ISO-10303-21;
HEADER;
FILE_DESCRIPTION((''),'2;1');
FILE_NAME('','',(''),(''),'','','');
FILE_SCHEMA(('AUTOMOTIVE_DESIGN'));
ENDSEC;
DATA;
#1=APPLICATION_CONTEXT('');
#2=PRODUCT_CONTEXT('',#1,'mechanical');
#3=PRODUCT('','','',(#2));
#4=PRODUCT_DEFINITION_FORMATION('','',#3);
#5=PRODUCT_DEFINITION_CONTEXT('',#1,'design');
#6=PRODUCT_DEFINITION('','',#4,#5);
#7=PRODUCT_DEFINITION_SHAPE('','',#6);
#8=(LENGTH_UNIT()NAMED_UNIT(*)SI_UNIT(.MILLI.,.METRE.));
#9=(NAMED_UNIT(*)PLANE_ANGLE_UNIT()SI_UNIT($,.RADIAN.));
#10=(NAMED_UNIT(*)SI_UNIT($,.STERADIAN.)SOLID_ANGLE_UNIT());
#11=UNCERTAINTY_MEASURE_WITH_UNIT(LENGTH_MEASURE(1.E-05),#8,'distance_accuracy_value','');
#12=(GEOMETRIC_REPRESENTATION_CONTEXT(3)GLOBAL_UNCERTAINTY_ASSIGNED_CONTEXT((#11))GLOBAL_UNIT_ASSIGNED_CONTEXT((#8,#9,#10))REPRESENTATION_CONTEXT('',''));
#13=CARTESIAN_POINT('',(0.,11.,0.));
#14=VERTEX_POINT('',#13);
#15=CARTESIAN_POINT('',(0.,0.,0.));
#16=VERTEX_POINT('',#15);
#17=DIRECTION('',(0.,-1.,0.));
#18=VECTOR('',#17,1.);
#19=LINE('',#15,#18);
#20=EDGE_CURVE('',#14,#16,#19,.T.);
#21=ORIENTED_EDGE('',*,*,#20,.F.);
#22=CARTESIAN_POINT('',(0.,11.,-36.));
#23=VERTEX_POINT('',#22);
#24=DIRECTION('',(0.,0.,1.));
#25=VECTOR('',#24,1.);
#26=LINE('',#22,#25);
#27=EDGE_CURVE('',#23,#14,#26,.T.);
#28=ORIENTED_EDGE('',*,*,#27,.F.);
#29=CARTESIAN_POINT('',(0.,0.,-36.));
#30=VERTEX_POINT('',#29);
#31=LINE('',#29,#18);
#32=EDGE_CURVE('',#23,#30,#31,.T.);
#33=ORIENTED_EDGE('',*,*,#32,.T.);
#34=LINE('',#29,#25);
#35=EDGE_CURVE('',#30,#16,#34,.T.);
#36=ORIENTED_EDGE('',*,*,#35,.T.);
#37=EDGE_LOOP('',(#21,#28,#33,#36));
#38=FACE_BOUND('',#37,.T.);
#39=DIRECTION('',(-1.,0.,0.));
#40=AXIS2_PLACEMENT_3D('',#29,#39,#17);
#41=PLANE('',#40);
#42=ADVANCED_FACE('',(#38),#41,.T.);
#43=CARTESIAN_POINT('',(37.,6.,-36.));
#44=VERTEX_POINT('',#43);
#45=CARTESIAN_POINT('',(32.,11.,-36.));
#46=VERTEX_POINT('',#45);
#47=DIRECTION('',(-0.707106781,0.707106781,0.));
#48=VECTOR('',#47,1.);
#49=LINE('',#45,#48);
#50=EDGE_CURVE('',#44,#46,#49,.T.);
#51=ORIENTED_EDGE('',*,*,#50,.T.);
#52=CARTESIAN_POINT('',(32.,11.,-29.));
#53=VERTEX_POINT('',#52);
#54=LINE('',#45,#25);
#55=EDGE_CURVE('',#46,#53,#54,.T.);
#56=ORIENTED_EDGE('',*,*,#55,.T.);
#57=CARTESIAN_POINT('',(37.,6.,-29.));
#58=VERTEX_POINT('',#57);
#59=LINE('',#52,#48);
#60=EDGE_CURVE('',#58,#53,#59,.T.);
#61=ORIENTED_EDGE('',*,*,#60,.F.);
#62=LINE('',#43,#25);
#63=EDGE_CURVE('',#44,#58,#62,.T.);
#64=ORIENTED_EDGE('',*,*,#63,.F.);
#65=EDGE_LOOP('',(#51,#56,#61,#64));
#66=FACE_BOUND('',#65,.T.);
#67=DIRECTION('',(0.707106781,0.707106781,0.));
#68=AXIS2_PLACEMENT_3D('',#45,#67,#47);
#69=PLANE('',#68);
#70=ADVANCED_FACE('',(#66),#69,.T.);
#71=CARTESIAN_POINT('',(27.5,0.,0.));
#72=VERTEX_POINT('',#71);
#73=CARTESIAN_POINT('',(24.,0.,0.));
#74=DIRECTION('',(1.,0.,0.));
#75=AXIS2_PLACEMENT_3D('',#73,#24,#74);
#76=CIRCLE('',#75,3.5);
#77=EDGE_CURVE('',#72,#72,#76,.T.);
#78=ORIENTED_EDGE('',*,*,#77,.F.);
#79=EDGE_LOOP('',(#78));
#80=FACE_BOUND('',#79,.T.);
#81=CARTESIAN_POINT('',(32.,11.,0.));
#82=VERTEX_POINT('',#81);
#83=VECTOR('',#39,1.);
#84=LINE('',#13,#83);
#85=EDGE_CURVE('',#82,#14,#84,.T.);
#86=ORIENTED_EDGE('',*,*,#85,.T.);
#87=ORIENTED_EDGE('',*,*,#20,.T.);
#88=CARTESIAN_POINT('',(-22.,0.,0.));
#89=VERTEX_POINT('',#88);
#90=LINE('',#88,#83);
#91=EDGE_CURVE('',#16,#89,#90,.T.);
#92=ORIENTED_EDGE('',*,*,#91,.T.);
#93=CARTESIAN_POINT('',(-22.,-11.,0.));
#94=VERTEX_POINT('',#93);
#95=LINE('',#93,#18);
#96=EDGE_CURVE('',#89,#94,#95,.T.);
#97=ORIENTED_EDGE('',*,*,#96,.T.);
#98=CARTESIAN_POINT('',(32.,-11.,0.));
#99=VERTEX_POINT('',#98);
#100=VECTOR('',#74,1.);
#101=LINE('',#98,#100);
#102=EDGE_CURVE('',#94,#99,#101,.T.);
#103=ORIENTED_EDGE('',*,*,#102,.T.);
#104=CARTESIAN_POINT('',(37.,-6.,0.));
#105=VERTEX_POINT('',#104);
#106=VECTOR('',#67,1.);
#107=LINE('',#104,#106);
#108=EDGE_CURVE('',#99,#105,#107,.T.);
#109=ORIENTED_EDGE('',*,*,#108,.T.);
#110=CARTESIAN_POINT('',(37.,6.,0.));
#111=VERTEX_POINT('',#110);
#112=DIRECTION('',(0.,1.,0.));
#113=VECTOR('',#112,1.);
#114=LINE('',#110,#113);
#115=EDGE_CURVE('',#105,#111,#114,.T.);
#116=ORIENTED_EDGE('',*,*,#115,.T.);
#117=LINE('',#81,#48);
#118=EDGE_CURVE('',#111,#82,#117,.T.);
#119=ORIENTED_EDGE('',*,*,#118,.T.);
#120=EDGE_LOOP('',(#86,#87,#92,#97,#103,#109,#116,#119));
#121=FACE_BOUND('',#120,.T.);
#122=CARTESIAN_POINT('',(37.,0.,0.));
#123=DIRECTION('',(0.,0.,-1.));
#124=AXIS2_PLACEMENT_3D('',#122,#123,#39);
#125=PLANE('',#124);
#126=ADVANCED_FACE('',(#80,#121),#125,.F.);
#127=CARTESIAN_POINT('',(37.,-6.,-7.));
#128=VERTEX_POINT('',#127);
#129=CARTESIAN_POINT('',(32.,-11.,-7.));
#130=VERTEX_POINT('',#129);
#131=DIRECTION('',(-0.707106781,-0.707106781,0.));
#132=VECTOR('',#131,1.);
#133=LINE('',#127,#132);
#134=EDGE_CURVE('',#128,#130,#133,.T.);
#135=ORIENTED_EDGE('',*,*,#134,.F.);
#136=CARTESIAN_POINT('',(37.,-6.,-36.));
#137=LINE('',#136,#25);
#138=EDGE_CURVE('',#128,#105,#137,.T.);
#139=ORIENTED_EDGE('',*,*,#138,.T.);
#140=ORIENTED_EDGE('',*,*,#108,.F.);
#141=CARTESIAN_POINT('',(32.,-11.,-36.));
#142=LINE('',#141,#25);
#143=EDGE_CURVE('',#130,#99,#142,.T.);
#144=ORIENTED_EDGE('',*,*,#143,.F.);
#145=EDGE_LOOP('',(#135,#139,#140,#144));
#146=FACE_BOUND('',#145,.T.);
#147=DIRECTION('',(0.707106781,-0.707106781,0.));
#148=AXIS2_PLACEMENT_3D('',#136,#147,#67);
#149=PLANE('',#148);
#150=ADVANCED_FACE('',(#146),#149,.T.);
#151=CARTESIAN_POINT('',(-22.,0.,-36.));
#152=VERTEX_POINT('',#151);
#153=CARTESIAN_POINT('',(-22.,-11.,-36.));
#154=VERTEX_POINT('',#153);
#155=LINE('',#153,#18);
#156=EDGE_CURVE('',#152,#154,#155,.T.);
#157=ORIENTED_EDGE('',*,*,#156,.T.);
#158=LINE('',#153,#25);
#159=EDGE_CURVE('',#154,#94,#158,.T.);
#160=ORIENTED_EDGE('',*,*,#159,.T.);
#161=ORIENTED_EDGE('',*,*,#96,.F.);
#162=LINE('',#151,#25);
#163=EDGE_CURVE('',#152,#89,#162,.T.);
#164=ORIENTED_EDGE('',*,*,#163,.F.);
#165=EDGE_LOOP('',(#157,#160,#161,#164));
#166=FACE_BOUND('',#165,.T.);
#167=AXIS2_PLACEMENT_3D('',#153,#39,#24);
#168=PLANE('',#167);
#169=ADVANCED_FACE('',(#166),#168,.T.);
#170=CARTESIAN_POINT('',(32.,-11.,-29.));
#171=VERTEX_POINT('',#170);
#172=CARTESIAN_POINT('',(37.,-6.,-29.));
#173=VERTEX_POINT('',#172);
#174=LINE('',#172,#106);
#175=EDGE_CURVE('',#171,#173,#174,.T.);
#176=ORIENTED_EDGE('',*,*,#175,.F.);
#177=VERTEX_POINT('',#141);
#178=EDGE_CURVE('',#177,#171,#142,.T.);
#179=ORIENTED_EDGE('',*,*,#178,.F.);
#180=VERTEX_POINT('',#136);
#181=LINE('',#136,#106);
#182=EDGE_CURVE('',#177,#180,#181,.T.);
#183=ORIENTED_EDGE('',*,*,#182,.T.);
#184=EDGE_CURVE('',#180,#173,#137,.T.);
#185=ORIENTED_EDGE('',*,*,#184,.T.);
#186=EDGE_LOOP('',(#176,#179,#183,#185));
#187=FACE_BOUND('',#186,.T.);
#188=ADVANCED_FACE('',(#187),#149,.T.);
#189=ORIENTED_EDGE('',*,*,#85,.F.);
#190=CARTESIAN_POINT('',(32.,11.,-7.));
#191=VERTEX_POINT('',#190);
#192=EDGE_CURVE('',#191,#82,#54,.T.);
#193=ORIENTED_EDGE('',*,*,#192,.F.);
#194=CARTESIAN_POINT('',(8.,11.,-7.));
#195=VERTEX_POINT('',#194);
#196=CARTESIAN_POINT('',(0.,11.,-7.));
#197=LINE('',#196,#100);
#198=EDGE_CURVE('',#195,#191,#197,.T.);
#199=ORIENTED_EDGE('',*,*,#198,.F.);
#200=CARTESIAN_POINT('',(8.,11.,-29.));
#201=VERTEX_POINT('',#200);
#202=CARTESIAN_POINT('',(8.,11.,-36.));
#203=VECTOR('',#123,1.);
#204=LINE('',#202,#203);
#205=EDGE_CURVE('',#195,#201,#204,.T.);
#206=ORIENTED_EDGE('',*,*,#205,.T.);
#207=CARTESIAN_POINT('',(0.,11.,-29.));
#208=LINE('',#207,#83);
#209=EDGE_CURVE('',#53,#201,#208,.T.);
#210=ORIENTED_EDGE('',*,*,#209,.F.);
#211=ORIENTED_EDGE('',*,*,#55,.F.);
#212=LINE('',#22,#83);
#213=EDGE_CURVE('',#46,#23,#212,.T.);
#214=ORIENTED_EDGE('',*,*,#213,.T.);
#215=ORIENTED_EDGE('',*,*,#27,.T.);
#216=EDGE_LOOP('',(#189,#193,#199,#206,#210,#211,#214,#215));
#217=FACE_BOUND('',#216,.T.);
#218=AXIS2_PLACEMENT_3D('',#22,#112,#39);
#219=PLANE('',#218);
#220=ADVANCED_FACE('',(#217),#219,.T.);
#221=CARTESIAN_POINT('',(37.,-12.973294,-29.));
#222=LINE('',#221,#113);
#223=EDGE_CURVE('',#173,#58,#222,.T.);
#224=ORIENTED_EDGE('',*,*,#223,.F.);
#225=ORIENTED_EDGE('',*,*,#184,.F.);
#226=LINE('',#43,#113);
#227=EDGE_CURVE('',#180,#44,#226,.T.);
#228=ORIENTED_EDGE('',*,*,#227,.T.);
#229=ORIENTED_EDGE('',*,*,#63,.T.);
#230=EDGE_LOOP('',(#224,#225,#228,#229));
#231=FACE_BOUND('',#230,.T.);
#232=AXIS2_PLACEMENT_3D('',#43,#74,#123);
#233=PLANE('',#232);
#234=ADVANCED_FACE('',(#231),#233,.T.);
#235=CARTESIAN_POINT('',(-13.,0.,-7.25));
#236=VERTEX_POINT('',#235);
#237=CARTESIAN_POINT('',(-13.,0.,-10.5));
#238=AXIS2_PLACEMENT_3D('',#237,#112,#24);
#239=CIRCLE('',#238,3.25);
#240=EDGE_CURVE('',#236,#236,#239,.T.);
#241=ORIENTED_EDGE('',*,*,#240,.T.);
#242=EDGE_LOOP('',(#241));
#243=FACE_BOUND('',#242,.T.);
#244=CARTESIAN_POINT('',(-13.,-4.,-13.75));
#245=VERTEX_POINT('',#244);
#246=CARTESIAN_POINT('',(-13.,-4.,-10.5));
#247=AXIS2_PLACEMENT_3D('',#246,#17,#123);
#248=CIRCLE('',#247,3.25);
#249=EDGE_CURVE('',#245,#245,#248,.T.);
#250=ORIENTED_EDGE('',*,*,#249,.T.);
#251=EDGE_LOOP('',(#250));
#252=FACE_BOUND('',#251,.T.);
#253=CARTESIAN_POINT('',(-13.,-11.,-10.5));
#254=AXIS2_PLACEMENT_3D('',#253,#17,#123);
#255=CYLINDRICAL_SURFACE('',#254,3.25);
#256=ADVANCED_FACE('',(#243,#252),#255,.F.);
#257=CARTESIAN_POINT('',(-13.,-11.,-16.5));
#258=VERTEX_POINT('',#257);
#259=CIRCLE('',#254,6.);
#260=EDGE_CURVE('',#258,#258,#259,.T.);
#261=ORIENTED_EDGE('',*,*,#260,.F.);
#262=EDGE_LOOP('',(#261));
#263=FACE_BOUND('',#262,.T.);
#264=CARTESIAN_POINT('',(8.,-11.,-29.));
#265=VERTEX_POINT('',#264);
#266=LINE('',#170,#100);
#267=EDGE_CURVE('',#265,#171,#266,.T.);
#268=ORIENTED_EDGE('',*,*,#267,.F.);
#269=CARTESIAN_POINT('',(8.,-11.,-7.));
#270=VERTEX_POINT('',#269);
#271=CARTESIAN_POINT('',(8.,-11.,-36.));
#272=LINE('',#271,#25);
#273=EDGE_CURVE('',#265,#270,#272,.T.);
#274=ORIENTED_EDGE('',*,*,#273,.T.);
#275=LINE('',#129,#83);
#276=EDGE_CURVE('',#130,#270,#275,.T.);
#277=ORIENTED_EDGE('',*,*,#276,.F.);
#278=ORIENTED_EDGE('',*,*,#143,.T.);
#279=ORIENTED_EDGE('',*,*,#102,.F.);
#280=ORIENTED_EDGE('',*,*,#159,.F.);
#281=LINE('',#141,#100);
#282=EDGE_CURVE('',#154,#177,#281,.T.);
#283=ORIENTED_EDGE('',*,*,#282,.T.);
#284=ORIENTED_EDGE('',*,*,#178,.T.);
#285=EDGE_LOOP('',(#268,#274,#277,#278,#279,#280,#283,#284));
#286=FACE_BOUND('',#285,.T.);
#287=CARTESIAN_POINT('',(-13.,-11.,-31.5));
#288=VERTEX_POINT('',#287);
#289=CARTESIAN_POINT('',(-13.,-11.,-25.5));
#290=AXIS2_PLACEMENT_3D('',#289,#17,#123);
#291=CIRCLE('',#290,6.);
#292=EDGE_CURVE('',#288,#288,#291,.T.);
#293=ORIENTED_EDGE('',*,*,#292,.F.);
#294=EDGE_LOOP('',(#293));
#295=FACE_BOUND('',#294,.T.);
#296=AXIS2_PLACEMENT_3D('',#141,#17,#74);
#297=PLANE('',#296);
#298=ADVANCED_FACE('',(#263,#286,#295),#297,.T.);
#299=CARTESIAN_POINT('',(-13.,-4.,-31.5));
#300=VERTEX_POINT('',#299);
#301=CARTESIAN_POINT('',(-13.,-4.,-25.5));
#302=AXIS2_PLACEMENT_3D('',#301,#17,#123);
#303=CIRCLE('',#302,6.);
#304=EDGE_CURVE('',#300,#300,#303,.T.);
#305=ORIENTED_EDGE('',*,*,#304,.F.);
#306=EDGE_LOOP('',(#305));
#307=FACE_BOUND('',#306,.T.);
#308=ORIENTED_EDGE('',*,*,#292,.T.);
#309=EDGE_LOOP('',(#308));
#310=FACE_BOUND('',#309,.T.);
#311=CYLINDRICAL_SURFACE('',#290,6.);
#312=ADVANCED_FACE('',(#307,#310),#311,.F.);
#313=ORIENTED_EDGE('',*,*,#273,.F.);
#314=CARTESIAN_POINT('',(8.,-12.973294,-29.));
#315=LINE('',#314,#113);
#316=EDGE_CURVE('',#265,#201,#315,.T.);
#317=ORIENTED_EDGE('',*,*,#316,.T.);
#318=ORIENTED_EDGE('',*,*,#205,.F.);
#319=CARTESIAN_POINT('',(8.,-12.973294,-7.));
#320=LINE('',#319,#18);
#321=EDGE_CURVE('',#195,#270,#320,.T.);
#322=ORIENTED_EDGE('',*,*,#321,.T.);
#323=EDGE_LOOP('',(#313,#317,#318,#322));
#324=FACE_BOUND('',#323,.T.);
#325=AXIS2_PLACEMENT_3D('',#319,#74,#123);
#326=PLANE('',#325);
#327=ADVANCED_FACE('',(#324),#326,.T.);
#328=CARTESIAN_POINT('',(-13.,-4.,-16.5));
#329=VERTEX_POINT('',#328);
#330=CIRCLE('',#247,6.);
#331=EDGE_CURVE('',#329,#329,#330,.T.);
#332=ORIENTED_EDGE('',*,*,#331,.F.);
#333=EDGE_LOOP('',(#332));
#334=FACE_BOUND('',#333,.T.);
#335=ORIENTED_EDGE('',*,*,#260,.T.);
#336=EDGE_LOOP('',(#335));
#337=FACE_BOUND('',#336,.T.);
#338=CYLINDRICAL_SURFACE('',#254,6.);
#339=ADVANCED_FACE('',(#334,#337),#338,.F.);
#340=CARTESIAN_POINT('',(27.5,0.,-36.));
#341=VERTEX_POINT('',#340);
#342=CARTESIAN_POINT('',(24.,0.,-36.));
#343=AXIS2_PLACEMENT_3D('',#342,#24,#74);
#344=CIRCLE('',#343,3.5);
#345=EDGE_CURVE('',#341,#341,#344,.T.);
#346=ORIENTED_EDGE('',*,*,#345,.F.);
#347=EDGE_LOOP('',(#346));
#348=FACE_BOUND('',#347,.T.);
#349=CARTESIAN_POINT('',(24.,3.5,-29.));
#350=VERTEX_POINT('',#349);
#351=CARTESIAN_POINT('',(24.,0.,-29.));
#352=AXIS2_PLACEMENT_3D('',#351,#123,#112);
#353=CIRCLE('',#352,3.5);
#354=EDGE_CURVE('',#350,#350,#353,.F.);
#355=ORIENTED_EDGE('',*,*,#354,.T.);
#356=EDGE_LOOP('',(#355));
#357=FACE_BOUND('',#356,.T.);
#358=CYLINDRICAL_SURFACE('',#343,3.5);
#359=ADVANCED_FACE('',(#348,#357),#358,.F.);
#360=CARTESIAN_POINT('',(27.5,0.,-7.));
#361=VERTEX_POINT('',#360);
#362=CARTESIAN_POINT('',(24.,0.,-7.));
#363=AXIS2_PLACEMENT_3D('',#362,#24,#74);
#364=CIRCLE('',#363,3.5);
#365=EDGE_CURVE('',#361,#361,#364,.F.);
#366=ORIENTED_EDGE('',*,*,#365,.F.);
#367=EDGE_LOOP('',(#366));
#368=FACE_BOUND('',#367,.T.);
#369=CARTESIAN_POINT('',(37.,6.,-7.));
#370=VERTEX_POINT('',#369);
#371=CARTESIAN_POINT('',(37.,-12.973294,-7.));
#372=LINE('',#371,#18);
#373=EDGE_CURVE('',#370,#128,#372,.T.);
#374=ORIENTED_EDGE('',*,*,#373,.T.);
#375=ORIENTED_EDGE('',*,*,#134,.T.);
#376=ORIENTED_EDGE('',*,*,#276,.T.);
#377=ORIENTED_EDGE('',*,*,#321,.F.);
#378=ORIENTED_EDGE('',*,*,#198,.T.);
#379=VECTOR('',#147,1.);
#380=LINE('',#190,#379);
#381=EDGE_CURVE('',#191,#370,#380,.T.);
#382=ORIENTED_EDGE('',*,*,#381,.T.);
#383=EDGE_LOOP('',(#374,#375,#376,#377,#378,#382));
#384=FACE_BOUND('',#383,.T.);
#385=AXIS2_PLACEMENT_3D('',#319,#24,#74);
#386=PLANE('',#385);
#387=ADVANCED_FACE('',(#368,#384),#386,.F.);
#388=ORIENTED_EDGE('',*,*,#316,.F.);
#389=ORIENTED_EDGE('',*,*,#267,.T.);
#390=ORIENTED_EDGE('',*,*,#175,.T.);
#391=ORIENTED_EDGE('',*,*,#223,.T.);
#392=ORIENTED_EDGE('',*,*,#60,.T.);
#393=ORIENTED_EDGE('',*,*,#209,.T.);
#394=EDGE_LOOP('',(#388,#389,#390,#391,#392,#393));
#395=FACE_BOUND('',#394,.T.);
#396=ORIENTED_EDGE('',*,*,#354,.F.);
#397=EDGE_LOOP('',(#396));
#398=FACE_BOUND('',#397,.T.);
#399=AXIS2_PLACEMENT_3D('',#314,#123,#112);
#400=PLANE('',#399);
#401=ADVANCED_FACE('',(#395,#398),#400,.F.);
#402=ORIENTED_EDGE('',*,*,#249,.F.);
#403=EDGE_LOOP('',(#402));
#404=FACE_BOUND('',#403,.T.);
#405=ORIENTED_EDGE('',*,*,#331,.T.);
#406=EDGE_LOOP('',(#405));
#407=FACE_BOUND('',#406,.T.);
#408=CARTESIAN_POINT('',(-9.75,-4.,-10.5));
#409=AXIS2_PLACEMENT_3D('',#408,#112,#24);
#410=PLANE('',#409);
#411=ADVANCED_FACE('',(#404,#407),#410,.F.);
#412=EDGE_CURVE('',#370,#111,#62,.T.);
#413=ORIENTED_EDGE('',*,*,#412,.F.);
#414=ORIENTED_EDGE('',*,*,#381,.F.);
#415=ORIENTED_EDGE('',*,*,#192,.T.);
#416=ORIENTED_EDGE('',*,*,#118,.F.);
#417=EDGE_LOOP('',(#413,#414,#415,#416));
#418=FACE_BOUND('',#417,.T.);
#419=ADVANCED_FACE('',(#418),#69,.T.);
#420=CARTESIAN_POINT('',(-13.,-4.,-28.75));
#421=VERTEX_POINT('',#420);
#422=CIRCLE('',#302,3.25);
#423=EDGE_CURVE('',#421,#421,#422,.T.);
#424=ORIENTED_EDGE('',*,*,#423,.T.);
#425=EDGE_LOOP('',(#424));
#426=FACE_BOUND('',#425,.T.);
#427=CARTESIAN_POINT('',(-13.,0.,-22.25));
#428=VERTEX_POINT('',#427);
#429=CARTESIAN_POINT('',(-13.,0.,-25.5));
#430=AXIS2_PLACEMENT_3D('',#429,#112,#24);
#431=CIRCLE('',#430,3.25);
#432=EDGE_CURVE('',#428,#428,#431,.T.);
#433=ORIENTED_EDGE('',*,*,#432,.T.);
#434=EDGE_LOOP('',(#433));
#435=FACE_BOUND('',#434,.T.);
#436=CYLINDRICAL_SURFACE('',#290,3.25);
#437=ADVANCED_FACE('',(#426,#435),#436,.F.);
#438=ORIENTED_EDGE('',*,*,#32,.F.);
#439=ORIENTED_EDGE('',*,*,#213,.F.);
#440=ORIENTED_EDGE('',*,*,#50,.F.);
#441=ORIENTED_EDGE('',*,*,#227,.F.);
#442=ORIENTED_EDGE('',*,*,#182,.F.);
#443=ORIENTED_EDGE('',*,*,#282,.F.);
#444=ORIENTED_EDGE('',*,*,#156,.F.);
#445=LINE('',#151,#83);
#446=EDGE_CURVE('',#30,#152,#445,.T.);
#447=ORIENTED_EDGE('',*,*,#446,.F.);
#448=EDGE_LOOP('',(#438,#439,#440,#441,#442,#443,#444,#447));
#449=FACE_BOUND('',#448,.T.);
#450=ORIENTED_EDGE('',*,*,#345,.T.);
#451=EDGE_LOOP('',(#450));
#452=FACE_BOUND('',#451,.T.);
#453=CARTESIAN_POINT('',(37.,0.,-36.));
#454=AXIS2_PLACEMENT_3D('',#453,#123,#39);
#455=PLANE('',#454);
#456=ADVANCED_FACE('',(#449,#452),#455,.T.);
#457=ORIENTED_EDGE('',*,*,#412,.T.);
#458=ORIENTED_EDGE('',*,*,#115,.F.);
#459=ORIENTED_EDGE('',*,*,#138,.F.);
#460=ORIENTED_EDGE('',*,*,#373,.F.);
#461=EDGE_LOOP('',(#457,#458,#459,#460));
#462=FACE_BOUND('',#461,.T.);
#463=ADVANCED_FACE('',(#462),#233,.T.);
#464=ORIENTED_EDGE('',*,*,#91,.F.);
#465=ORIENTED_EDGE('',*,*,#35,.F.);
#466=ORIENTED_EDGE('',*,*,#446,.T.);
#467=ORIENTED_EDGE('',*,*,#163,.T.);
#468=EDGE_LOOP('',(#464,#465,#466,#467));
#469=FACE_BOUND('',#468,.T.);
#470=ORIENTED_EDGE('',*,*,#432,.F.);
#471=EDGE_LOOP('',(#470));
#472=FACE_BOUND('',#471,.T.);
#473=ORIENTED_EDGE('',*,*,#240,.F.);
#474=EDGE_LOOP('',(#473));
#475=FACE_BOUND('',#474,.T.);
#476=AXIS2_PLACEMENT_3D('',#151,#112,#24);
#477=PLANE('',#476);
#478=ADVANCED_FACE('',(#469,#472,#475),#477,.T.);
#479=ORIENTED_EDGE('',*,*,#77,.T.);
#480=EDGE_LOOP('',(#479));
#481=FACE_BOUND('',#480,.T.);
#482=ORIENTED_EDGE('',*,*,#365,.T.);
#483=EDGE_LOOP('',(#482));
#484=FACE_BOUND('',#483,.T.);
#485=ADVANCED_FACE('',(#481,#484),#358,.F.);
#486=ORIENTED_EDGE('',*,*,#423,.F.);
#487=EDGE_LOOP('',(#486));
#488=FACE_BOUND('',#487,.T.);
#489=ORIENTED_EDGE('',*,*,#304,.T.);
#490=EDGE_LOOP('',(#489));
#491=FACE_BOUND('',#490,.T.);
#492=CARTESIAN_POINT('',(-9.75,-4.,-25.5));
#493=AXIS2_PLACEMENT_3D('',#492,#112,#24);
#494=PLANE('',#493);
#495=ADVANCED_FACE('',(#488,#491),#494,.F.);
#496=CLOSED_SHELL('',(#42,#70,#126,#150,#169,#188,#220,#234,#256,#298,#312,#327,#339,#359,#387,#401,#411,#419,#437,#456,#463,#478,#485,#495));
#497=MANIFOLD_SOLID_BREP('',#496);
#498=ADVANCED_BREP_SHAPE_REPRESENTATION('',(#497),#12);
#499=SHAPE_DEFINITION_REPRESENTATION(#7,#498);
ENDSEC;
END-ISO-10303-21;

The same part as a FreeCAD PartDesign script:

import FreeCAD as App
import Part
import Sketcher
Q = App.Units.Quantity


def add_polygon(sketch, points):
    """Adds a closed chain of lines whose ends are joined by coincident constraints."""
    first, n = sketch.GeometryCount, len(points)
    for a, b in zip(points, points[1:] + points[:1]):
        sketch.addGeometry(Part.LineSegment(App.Vector(*a, 0), App.Vector(*b, 0)), False)
    for i in range(n):
        sketch.addConstraint(Sketcher.Constraint("Coincident", first + i, 2, first + (i + 1) % n, 1))

doc = App.newDocument("Part")
body = doc.addObject("PartDesign::Body", "Body")

# Sketch on XY plane
sketch1 = body.newObject("Sketcher::SketchObject", "Sketch")
sketch1.AttachmentSupport = (doc.getObject("XY_Plane"), [""])
sketch1.MapMode = "FlatFace"
add_polygon(sketch1, [(0, 11), (0, 0), (-22, 0), (-22, -11), (32, -11), (37, -6), (37, 6), (32, 11)])  # lines 0-7
sketch1.addGeometry(Part.Circle(App.Vector(24, 0, 0), App.Vector(0, 0, 1), 3.5), False)  # 8
sketch1.addConstraint([
    Sketcher.Constraint("Vertical", 0),
    Sketcher.Constraint("Horizontal", 1),
    Sketcher.Constraint("Vertical", 2),
    Sketcher.Constraint("Horizontal", 3),
    Sketcher.Constraint("Vertical", 5),
    Sketcher.Constraint("Horizontal", 7),
    Sketcher.Constraint("Coincident", 0, 2, -1, 1),
    Sketcher.Constraint("Symmetric", 3, 2, 6, 2, -1),
    Sketcher.Constraint("PointOnObject", 8, 3, -1),
    Sketcher.Constraint("Perpendicular", 4, 6),
    Sketcher.Constraint("Equal", 4, 6),
    Sketcher.Constraint("Diameter", 8, Q("7 mm")),
    Sketcher.Constraint("DistanceX", 1, 2, 1, 1, Q("22 mm")),
    Sketcher.Constraint("DistanceX", 3, 1, 3, 2, Q("54 mm")),
    Sketcher.Constraint("DistanceY", 0, 2, 0, 1, Q("11 mm")),
    Sketcher.Constraint("DistanceY", 5, 1, 5, 2, Q("12 mm")),
    Sketcher.Constraint("DistanceX", -1, 1, 8, 3, Q("24 mm")),
])
pad1 = body.newObject("PartDesign::Pad", "Pad")
pad1.Profile = sketch1
pad1.Length = 36
pad1.Reversed = True

# Sketch on XZ plane
sketch2 = body.newObject("Sketcher::SketchObject", "Sketch001")
sketch2.AttachmentSupport = (doc.getObject("XZ_Plane"), [""])
sketch2.MapMode = "FlatFace"
sketch2.AttachmentOffset = App.Placement(App.Vector(0, 0, 11), App.Rotation())
sketch2.addGeometry([
    Part.Circle(App.Vector(-13, -25.5, 0), App.Vector(0, 0, 1), 3.25),
    Part.Circle(App.Vector(-13, -10.5, 0), App.Vector(0, 0, 1), 3.25),
], False)
sketch2.addConstraint([
    Sketcher.Constraint("Equal", 0, 1),
    Sketcher.Constraint("Vertical", 0, 3, 1, 3),
    Sketcher.Constraint("Diameter", 0, Q("6.5 mm")),
    Sketcher.Constraint("DistanceX", 0, 3, -1, 1, Q("13 mm")),
    Sketcher.Constraint("DistanceY", 0, 3, 1, 3, Q("15 mm")),
    Sketcher.Constraint("DistanceY", 0, 3, -1, 1, Q("25.5 mm")),
])
doc.recompute()
hole = body.newObject("PartDesign::Hole", "Hole")
hole.Profile = sketch2
hole.ThreadType = "None"
hole.Diameter = 6.5
hole.DepthType = "ThroughAll"
hole.HoleCutType = "Counterbore"
hole.HoleCutDiameter = 12
hole.HoleCutDepth = 7

# Sketch on YZ plane
sketch3 = body.newObject("Sketcher::SketchObject", "Sketch002")
sketch3.AttachmentSupport = (doc.getObject("YZ_Plane"), [""])
sketch3.MapMode = "FlatFace"
sketch3.AttachmentOffset = App.Placement(App.Vector(0, 0, 37), App.Rotation())
add_polygon(sketch3, [(-12.973294, -7), (-12.973294, -29), (12.026706, -29), (12.026706, -7)])  # lines 0-3
sketch3.addConstraint([
    Sketcher.Constraint("Vertical", 0),
    Sketcher.Constraint("Horizontal", 1),
    Sketcher.Constraint("Vertical", 2),
    Sketcher.Constraint("Horizontal", 3),
    Sketcher.Constraint("DistanceX", 1, 1, 1, 2, Q("25 mm")),
    Sketcher.Constraint("DistanceY", 0, 2, 0, 1, Q("22 mm")),
    Sketcher.Constraint("DistanceY", 0, 2, -1, 1, Q("29 mm")),
    Sketcher.Constraint("DistanceX", 0, 2, -1, 1, Q("12.973294 mm")),
])
pocket1 = body.newObject("PartDesign::Pocket", "Pocket")
pocket1.Profile = sketch3
pocket1.Length = 29

doc.recompute()
